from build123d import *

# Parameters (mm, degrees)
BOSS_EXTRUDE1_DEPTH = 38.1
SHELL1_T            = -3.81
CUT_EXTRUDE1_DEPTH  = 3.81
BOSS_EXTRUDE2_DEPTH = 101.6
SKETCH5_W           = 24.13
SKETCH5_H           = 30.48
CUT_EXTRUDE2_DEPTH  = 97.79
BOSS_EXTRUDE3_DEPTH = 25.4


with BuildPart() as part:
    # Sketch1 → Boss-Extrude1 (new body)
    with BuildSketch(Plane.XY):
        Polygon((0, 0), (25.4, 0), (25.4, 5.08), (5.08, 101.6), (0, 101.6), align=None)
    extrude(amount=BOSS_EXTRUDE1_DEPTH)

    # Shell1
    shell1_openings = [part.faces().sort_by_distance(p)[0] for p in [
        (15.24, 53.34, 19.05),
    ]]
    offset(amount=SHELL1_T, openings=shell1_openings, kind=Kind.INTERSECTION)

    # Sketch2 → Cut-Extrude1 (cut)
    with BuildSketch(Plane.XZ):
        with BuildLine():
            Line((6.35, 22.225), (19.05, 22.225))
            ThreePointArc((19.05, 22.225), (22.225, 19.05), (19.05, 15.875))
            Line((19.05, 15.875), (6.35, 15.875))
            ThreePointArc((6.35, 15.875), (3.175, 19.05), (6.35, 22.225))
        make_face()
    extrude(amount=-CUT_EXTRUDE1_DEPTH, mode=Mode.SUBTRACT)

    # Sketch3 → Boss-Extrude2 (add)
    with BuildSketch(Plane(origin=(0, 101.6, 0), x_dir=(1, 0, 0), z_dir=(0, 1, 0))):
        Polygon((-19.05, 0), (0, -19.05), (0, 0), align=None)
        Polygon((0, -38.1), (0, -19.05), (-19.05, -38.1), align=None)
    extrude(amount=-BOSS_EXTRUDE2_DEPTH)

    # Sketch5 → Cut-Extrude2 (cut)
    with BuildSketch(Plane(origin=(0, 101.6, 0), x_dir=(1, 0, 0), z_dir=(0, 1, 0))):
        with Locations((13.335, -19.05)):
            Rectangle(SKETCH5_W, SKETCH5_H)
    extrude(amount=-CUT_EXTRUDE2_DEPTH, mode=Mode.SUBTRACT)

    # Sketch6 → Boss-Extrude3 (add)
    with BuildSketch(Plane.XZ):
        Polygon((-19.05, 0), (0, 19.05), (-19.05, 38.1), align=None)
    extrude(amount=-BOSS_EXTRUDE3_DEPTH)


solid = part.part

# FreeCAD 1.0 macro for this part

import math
import FreeCAD as App
import Part
import Sketcher

V = App.Vector
Q = App.Units.Quantity


def faces_at(feature, points):
    """Names of the faces that lie closest to the given points."""
    faces = feature.Shape.Faces
    near = lambda p: min(range(len(faces)), key=lambda i: faces[i].distToShape(Part.Vertex(*p))[0])
    return sorted({f"Face{near(p) + 1}" for p in points})


def add_polygon(sketch, points):
    """Adds a closed chain of lines whose ends are joined by coincident constraints."""
    first, n = sketch.GeometryCount, len(points)
    for a, b in zip(points, points[1:] + points[:1]):
        sketch.addGeometry(Part.LineSegment(App.Vector(*a, 0), App.Vector(*b, 0)), False)
    for i in range(n):
        sketch.addConstraint(Sketcher.Constraint("Coincident", first + i, 2, first + (i + 1) % n, 1))

doc = App.newDocument("Part")
body = doc.addObject("PartDesign::Body", "Body")

# Sketch on XY plane
sketch1 = body.newObject("Sketcher::SketchObject", "Sketch")
sketch1.AttachmentSupport = (doc.getObject("XY_Plane"), [""])
sketch1.MapMode = "FlatFace"
add_polygon(sketch1, [(0, 0), (25, 0), (25, 5), (5, 102), (0, 102)])  # lines 0-4
sketch1.addConstraint([
    Sketcher.Constraint("Horizontal", 0),
    Sketcher.Constraint("Vertical", 1),
    Sketcher.Constraint("Horizontal", 3),
    Sketcher.Constraint("Vertical", 4),
    Sketcher.Constraint("Coincident", 4, 2, -1, 1),
    Sketcher.Constraint("Equal", 3, 1),
    Sketcher.Constraint("DistanceX", 0, 1, 0, 2, Q("1 in")),
    Sketcher.Constraint("DistanceY", 4, 2, 4, 1, Q("4 in")),
    Sketcher.Constraint("DistanceX", 3, 2, 3, 1, Q("0.2 in")),
])
pad1 = body.newObject("PartDesign::Pad", "Pad")
pad1.Profile = sketch1
pad1.Length = Q("1.5 in")
doc.recompute()

thickness = body.newObject("PartDesign::Thickness", "Thickness")
thickness.Base = (pad1, faces_at(pad1, [(15.24, 53.34, 19.05)]))
thickness.Value = Q("0.15 in")
thickness.Reversed = True
thickness.Join = "Intersection"

# Sketch on XZ plane
sketch2 = body.newObject("Sketcher::SketchObject", "Sketch001")
sketch2.AttachmentSupport = (doc.getObject("XZ_Plane"), [""])
sketch2.MapMode = "FlatFace"
sketch2.addGeometry([
    Part.LineSegment(V(19.1, 22.2, 0), V(6.3, 22.2, 0)),
    Part.ArcOfCircle(Part.Circle(V(6.3, 19.1, 0), V(0, 0, 1), 3.2), math.radians(90), math.radians(270)),
    Part.LineSegment(V(6.3, 15.9, 0), V(19.1, 15.9, 0)),
    Part.ArcOfCircle(Part.Circle(V(19.1, 19.1, 0), V(0, 0, 1), 3.2), math.radians(-90), math.radians(90)),
], False)
sketch2.addConstraint([
    Sketcher.Constraint("Tangent", 0, 2, 1, 1),
    Sketcher.Constraint("Tangent", 1, 2, 2, 1),
    Sketcher.Constraint("Tangent", 2, 2, 3, 1),
    Sketcher.Constraint("Tangent", 3, 2, 0, 1),
    Sketcher.Constraint("Horizontal", 0),
    Sketcher.Constraint("Horizontal", 2),
    Sketcher.Constraint("DistanceX", 0, 2, 0, 1, Q("0.5 in")),
    Sketcher.Constraint("Radius", 1, Q("0.125 in")),
    Sketcher.Constraint("DistanceX", -1, 1, 1, 3, Q("0.25 in")),
    Sketcher.Constraint("DistanceY", -1, 1, 1, 3, Q("0.75 in")),
])
pocket1 = body.newObject("PartDesign::Pocket", "Pocket")
pocket1.Profile = sketch2
pocket1.Length = Q("0.15 in")

# Sketch on XZ plane
sketch3 = body.newObject("Sketcher::SketchObject", "Sketch002")
sketch3.AttachmentSupport = (doc.getObject("XZ_Plane"), [""])
sketch3.MapMode = "FlatFace"
sketch3.AttachmentOffset = App.Placement(V(0, 0, -4 * 25.4), App.Rotation())
add_polygon(sketch3, [(-19, 0), (0, 19), (0, 0)])  # lines 0-2
add_polygon(sketch3, [(0, 38), (0, 19), (-19, 38)])  # lines 3-5
sketch3.addConstraint([
    Sketcher.Constraint("Vertical", 1),
    Sketcher.Constraint("Horizontal", 2),
    Sketcher.Constraint("Vertical", 3),
    Sketcher.Constraint("Horizontal", 5),
    Sketcher.Constraint("Coincident", 1, 2, -1, 1),
    Sketcher.Constraint("Coincident", 3, 2, 0, 2),
    Sketcher.Constraint("Perpendicular", 0, 4),
    Sketcher.Constraint("Vertical", 2, 2, 4, 2),
    Sketcher.Constraint("Equal", 5, 1),
    Sketcher.Constraint("DistanceX", 2, 2, 2, 1, Q("0.75 in")),
])
pad2 = body.newObject("PartDesign::Pad", "Pad001")
pad2.Profile = sketch3
pad2.Length = Q("4 in")

# Sketch on XZ plane
sketch4 = body.newObject("Sketcher::SketchObject", "Sketch003")
sketch4.AttachmentSupport = (doc.getObject("XZ_Plane"), [""])
sketch4.MapMode = "FlatFace"
sketch4.AttachmentOffset = App.Placement(V(0, 0, -4 * 25.4), App.Rotation())
add_polygon(sketch4, [(1, 4), (1, 34), (25, 34), (25, 4)])  # lines 0-3
sketch4.addConstraint([
    Sketcher.Constraint("Vertical", 0),
    Sketcher.Constraint("Horizontal", 1),
    Sketcher.Constraint("Vertical", 2),
    Sketcher.Constraint("Horizontal", 3),
    Sketcher.Constraint("DistanceY", 0, 1, 0, 2, Q("1.2 in")),
    Sketcher.Constraint("DistanceX", -1, 1, 1, 2, Q("1 in")),
    Sketcher.Constraint("DistanceX", 1, 1, 1, 2, Q("0.95 in")),
    Sketcher.Constraint("DistanceY", -1, 1, 0, 2, Q("1.35 in")),
])
pocket2 = body.newObject("PartDesign::Pocket", "Pocket001")
pocket2.Profile = sketch4
pocket2.Length = Q("3.85 in")
pocket2.Reversed = True

# Sketch on XZ plane
sketch5 = body.newObject("Sketcher::SketchObject", "Sketch004")
sketch5.AttachmentSupport = (doc.getObject("XZ_Plane"), [""])
sketch5.MapMode = "FlatFace"
add_polygon(sketch5, [(-19, 0), (0, 19), (-19, 38)])  # lines 0-2
sketch5.addConstraint([
    Sketcher.Constraint("Vertical", 2),
    Sketcher.Constraint("PointOnObject", 0, 2, -2),
    Sketcher.Constraint("PointOnObject", 2, 2, -1),
    Sketcher.Constraint("Perpendicular", 0, 1),
    Sketcher.Constraint("Equal", 0, 1),
    Sketcher.Constraint("DistanceY", 2, 2, 2, 1, Q("1.5 in")),
])
pad3 = body.newObject("PartDesign::Pad", "Pad002")
pad3.Profile = sketch5
pad3.Length = Q("1 in")
pad3.Reversed = True

doc.recompute()
